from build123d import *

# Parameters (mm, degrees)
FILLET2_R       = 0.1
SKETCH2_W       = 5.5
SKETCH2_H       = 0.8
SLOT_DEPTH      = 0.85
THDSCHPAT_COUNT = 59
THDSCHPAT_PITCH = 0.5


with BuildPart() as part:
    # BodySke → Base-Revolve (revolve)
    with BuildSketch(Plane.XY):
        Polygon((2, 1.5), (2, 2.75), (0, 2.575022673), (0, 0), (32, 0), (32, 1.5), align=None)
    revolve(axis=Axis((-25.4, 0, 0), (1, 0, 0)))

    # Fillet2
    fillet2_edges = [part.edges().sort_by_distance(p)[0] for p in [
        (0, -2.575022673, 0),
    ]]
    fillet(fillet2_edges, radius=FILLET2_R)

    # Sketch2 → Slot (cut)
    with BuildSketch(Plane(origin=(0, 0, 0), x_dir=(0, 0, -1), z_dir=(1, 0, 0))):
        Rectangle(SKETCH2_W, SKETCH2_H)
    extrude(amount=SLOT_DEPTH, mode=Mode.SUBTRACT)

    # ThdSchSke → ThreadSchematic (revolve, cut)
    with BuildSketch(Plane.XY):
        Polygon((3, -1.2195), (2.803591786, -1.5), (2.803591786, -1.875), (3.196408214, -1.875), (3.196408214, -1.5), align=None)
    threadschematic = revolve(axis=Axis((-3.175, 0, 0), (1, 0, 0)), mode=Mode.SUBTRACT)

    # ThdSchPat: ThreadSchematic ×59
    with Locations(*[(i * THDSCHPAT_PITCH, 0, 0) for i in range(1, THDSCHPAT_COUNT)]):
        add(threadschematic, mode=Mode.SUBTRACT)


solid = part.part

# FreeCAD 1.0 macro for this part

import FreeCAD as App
import Part
import Sketcher

V = App.Vector
Q = App.Units.Quantity


def edges_at(feature, points):
    """Names of the edges that pass closest to the given points."""
    edges = feature.Shape.Edges
    near = lambda p: min(range(len(edges)), key=lambda i: edges[i].distToShape(Part.Vertex(*p))[0])
    return sorted({f"Edge{near(p) + 1}" for p in points})

doc = App.newDocument("Part")
body = doc.addObject("PartDesign::Body", "Body")

# Sketch on XY plane
sketch1 = doc.addObject("Sketcher::SketchObject", "Sketch")
body.addObject(sketch1)
sketch1.AttachmentSupport = (doc.XY_Plane, [""])
sketch1.MapMode = "FlatFace"
sketch1.addGeometry([
    Part.LineSegment(V(2, 1.5, 0), V(2, 2.8, 0)),  # 0
    Part.LineSegment(V(2, 2.8, 0), V(0, 2.6, 0)),  # 1
    Part.LineSegment(V(0, 2.6, 0), V(0, 0, 0)),  # 2
    Part.LineSegment(V(0, 0, 0), V(32, 0, 0)),  # 3
    Part.LineSegment(V(32, 0, 0), V(32, 1.5, 0)),  # 4
    Part.LineSegment(V(32, 1.5, 0), V(2, 1.5, 0)),  # 5
], False)
sketch1.addConstraint([
    Sketcher.Constraint("Coincident", 0, 2, 1, 1),
    Sketcher.Constraint("Coincident", 1, 2, 2, 1),
    Sketcher.Constraint("Coincident", 2, 2, 3, 1),
    Sketcher.Constraint("Coincident", 3, 2, 4, 1),
    Sketcher.Constraint("Coincident", 4, 2, 5, 1),
    Sketcher.Constraint("Coincident", 5, 2, 0, 1),
    Sketcher.Constraint("Vertical", 0),
    Sketcher.Constraint("Vertical", 2),
    Sketcher.Constraint("Horizontal", 3),
    Sketcher.Constraint("Vertical", 4),
    Sketcher.Constraint("Horizontal", 5),
    Sketcher.Constraint("Coincident", 2, 2, -1, 1),
    Sketcher.Constraint("DistanceX", 3, 1, 3, 2, Q("32 mm")),
    Sketcher.Constraint("DistanceX", 5, 2, 5, 1, Q("30 mm")),
    Sketcher.Constraint("Angle", 1, Q("-175 deg")),
    Sketcher.Constraint("DistanceY", 4, 1, 4, 2, Q("1.5 mm")),
    Sketcher.Constraint("DistanceY", 0, 1, 0, 2, Q("1.25 mm")),
])
revolution = doc.addObject("PartDesign::Revolution", "Revolution")
body.addObject(revolution)
revolution.Profile = sketch1
revolution.ReferenceAxis = (sketch1, ["H_Axis"])
revolution.Angle = 360
doc.recompute()

fillet = doc.addObject("PartDesign::Fillet", "Fillet")
body.addObject(fillet)
fillet.Base = (revolution, edges_at(revolution, [(0, -2.575, 0)]))
fillet.Radius = 0.1

# Sketch on YZ plane
sketch2 = doc.addObject("Sketcher::SketchObject", "Sketch001")
body.addObject(sketch2)
sketch2.AttachmentSupport = (doc.YZ_Plane, [""])
sketch2.MapMode = "FlatFace"
sketch2.addGeometry([
    Part.LineSegment(V(0.4, 2.8, 0), V(-0.4, 2.8, 0)),
    Part.LineSegment(V(-0.4, 2.8, 0), V(-0.4, -2.8, 0)),
    Part.LineSegment(V(-0.4, -2.8, 0), V(0.4, -2.8, 0)),
    Part.LineSegment(V(0.4, -2.8, 0), V(0.4, 2.8, 0)),
], False)
sketch2.addConstraint([
    Sketcher.Constraint("Coincident", 0, 2, 1, 1),
    Sketcher.Constraint("Coincident", 1, 2, 2, 1),
    Sketcher.Constraint("Coincident", 2, 2, 3, 1),
    Sketcher.Constraint("Coincident", 3, 2, 0, 1),
    Sketcher.Constraint("Horizontal", 0),
    Sketcher.Constraint("Vertical", 1),
    Sketcher.Constraint("Horizontal", 2),
    Sketcher.Constraint("Vertical", 3),
    Sketcher.Constraint("Symmetric", 0, 2, 2, 2, -1, 1),
    Sketcher.Constraint("DistanceX", 0, 2, 0, 1, Q("0.8 mm")),
    Sketcher.Constraint("DistanceY", 1, 2, 1, 1, Q("5.5 mm")),
])
pocket1 = doc.addObject("PartDesign::Pocket", "Pocket")
body.addObject(pocket1)
pocket1.Profile = sketch2
pocket1.Length = 0.85
pocket1.Reversed = True

# Sketch on XY plane
sketch3 = doc.addObject("Sketcher::SketchObject", "Sketch002")
body.addObject(sketch3)
sketch3.AttachmentSupport = (doc.XY_Plane, [""])
sketch3.MapMode = "FlatFace"
sketch3.addGeometry([
    Part.LineSegment(V(3, -1.22, 0), V(2.8, -1.5, 0)),  # 0
    Part.LineSegment(V(2.8, -1.5, 0), V(2.8, -1.88, 0)),  # 1
    Part.LineSegment(V(2.8, -1.88, 0), V(3.2, -1.88, 0)),  # 2
    Part.LineSegment(V(3.2, -1.88, 0), V(3.2, -1.5, 0)),  # 3
    Part.LineSegment(V(3.2, -1.5, 0), V(3, -1.22, 0)),  # 4
], False)
sketch3.addConstraint([
    Sketcher.Constraint("Coincident", 0, 2, 1, 1),
    Sketcher.Constraint("Coincident", 1, 2, 2, 1),
    Sketcher.Constraint("Coincident", 2, 2, 3, 1),
    Sketcher.Constraint("Coincident", 3, 2, 4, 1),
    Sketcher.Constraint("Coincident", 4, 2, 0, 1),
    Sketcher.Constraint("Vertical", 1),
    Sketcher.Constraint("Horizontal", 2),
    Sketcher.Constraint("Vertical", 3),
    Sketcher.Constraint("Horizontal", 0, 2, 3, 2),
    Sketcher.Constraint("Equal", 0, 4),
    Sketcher.Constraint("Angle", 0, Q("-125 deg")),
    Sketcher.Constraint("DistanceX", -1, 1, 4, 2, Q("3 mm")),
    Sketcher.Constraint("DistanceY", 0, 2, -1, 1, Q("1.5 mm")),
    Sketcher.Constraint("DistanceY", 1, 2, 1, 1, Q("0.375 mm")),
    Sketcher.Constraint("DistanceY", 4, 2, -1, 1, Q("1.2195 mm")),
])
groove = doc.addObject("PartDesign::Groove", "Groove")
body.addObject(groove)
groove.Profile = sketch3
groove.ReferenceAxis = (sketch3, ["H_Axis"])
groove.Angle = 360
doc.recompute()

linearpattern = doc.addObject("PartDesign::LinearPattern", "LinearPattern")
body.addObject(linearpattern)
linearpattern.Originals = [groove]
linearpattern.Direction = (doc.X_Axis, [""])
linearpattern.Mode = "offset"
linearpattern.Offset = 0.5
linearpattern.Occurrences = 59
body.Tip = linearpattern

doc.recompute()
